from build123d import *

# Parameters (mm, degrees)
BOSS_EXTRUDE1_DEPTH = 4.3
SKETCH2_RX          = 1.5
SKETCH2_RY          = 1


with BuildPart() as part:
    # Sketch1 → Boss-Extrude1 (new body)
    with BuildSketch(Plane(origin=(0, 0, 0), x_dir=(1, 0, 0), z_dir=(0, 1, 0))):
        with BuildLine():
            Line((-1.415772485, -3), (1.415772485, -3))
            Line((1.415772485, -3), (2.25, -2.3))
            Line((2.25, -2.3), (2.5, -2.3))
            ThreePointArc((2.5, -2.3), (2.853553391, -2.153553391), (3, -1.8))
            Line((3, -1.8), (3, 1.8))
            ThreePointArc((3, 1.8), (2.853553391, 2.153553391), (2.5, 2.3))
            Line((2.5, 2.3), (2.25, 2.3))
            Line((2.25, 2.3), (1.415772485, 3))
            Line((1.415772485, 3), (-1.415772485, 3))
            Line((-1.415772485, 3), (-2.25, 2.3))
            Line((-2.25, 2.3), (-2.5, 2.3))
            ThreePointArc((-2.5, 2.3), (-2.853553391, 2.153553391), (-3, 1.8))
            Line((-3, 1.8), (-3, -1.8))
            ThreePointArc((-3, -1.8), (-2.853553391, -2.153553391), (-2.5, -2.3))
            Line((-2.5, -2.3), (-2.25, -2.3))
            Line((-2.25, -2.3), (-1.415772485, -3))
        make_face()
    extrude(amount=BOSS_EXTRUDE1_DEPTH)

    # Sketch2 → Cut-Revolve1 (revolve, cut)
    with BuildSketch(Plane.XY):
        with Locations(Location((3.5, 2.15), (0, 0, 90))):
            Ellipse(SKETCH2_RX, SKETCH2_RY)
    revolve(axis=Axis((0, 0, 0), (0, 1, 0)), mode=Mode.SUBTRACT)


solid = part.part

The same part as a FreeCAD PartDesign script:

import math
import FreeCAD as App
import Part
import Sketcher
from FreeCAD import Vector
Q = App.Units.Quantity

doc = App.newDocument("Part")
params = doc.addObject("Spreadsheet::Sheet", "Params")
for row, (alias, value) in enumerate([
    ("sketch1_radius", "0.5 mm"),
    ("sketch1_height", "3.6 mm"),
    ("sketch1_width", "0.25 mm"),
    ("pad1_length", "4.3 mm"),
    ("groove_angle", "360 deg"),
], start=1):
    params.set(f"A{row}", alias)
    params.set(f"B{row}", "=" + value)
    params.setAlias(f"B{row}", alias)

body = doc.addObject("PartDesign::Body", "Body")

sketch1 = doc.addObject("Sketcher::SketchObject", "Sketch")
body.addObject(sketch1)
sketch1.AttachmentSupport = (doc.XZ_Plane, [""])
sketch1.MapMode = "FlatFace"
sketch1.addGeometry([
    Part.LineSegment(Vector(-1.42, 3, 0), Vector(1.42, 3, 0)),
    Part.LineSegment(Vector(1.42, 3, 0), Vector(2.25, 2.3, 0)),
    Part.LineSegment(Vector(2.25, 2.3, 0), Vector(2.5, 2.3, 0)),
    Part.ArcOfCircle(Part.Circle(Vector(2.5, 1.8, 0), Vector(0, 0, 1), 0.5), math.radians(0), math.radians(90)),
    Part.LineSegment(Vector(3, 1.8, 0), Vector(3, -1.8, 0)),
    Part.ArcOfCircle(Part.Circle(Vector(2.5, -1.8, 0), Vector(0, 0, 1), 0.5), math.radians(-90), math.radians(0)),
    Part.LineSegment(Vector(2.5, -2.3, 0), Vector(2.25, -2.3, 0)),
    Part.LineSegment(Vector(2.25, -2.3, 0), Vector(1.42, -3, 0)),
    Part.LineSegment(Vector(1.42, -3, 0), Vector(-1.42, -3, 0)),
    Part.LineSegment(Vector(-1.42, -3, 0), Vector(-2.25, -2.3, 0)),
    Part.LineSegment(Vector(-2.25, -2.3, 0), Vector(-2.5, -2.3, 0)),
    Part.ArcOfCircle(Part.Circle(Vector(-2.5, -1.8, 0), Vector(0, 0, 1), 0.5), math.radians(180), math.radians(270)),
    Part.LineSegment(Vector(-3, -1.8, 0), Vector(-3, 1.8, 0)),
    Part.ArcOfCircle(Part.Circle(Vector(-2.5, 1.8, 0), Vector(0, 0, 1), 0.5), math.radians(90), math.radians(180)),
    Part.LineSegment(Vector(-2.5, 2.3, 0), Vector(-2.25, 2.3, 0)),
    Part.LineSegment(Vector(-2.25, 2.3, 0), Vector(-1.42, 3, 0)),
], False)
sketch1.addConstraint([
    Sketcher.Constraint("Coincident", 0, 2, 1, 1),
    Sketcher.Constraint("Coincident", 1, 2, 2, 1),
    Sketcher.Constraint("Tangent", 2, 2, 3, 2),
    Sketcher.Constraint("Tangent", 3, 1, 4, 1),
    Sketcher.Constraint("Tangent", 4, 2, 5, 2),
    Sketcher.Constraint("Tangent", 5, 1, 6, 1),
    Sketcher.Constraint("Coincident", 6, 2, 7, 1),
    Sketcher.Constraint("Coincident", 7, 2, 8, 1),
    Sketcher.Constraint("Coincident", 8, 2, 9, 1),
    Sketcher.Constraint("Coincident", 9, 2, 10, 1),
    Sketcher.Constraint("Tangent", 10, 2, 11, 2),
    Sketcher.Constraint("Tangent", 11, 1, 12, 1),
    Sketcher.Constraint("Tangent", 12, 2, 13, 2),
    Sketcher.Constraint("Tangent", 13, 1, 14, 1),
    Sketcher.Constraint("Coincident", 14, 2, 15, 1),
    Sketcher.Constraint("Coincident", 15, 2, 0, 1),
    Sketcher.Constraint("Horizontal", 0),
    Sketcher.Constraint("Horizontal", 2),
    Sketcher.Constraint("Vertical", 4),
    Sketcher.Constraint("Horizontal", 6),
    Sketcher.Constraint("Horizontal", 8),
    Sketcher.Constraint("Horizontal", 10),
    Sketcher.Constraint("Vertical", 12),
    Sketcher.Constraint("Horizontal", 14),
    Sketcher.Constraint("Equal", 3, 5),
    Sketcher.Constraint("Equal", 5, 11),
    Sketcher.Constraint("Equal", 11, 13),
    Sketcher.Constraint("Symmetric", 3, 3, 11, 3, -1, 1),
    Sketcher.Constraint("Symmetric", 0, 2, 8, 2, -1, 1),
    Sketcher.Constraint("Symmetric", 6, 2, 14, 2, -1, 1),
    Sketcher.Constraint("Symmetric", 6, 2, 9, 2, -2),
    Sketcher.Constraint("Parallel", 1, 9),
    Sketcher.Constraint("Parallel", 7, 15),
    Sketcher.Constraint("Vertical", 0, 2, 7, 2),
    Sketcher.Constraint("Radius", 3, 0.5),
    Sketcher.Constraint("Angle", 1, Q("-40 deg")),
    Sketcher.Constraint("DistanceY", 4, 2, 4, 1, 3.6),
    Sketcher.Constraint("DistanceY", -1, 1, 0, 2, 3.0),
    Sketcher.Constraint("DistanceX", -1, 1, 3, 1, 3.0),
    Sketcher.Constraint("DistanceX", 2, 1, 2, 2, 0.25),
])
sketch1.setExpression("Constraints[34]", "Params.sketch1_radius")
sketch1.setExpression("Constraints[36]", "Params.sketch1_height")
sketch1.setExpression("Constraints[39]", "Params.sketch1_width")
pad1 = doc.addObject("PartDesign::Pad", "Pad")
body.addObject(pad1)
pad1.Profile = sketch1
pad1.setExpression("Length", "Params.pad1_length")
pad1.Reversed = True

sketch2 = doc.addObject("Sketcher::SketchObject", "Sketch001")
body.addObject(sketch2)
sketch2.AttachmentSupport = (doc.XY_Plane, [""])
sketch2.MapMode = "FlatFace"
sketch2.addGeometry(Part.Ellipse(Vector(3.5, 3.65, 0), Vector(2.5, 2.15, 0), Vector(3.5, 2.15, 0)), False)
sketch2.addConstraint(Sketcher.Constraint("Block", 0))
groove = doc.addObject("PartDesign::Groove", "Groove")
body.addObject(groove)
groove.Profile = sketch2
groove.ReferenceAxis = (sketch2, ["V_Axis"])
groove.setExpression("Angle", "Params.groove_angle")

doc.recompute()
